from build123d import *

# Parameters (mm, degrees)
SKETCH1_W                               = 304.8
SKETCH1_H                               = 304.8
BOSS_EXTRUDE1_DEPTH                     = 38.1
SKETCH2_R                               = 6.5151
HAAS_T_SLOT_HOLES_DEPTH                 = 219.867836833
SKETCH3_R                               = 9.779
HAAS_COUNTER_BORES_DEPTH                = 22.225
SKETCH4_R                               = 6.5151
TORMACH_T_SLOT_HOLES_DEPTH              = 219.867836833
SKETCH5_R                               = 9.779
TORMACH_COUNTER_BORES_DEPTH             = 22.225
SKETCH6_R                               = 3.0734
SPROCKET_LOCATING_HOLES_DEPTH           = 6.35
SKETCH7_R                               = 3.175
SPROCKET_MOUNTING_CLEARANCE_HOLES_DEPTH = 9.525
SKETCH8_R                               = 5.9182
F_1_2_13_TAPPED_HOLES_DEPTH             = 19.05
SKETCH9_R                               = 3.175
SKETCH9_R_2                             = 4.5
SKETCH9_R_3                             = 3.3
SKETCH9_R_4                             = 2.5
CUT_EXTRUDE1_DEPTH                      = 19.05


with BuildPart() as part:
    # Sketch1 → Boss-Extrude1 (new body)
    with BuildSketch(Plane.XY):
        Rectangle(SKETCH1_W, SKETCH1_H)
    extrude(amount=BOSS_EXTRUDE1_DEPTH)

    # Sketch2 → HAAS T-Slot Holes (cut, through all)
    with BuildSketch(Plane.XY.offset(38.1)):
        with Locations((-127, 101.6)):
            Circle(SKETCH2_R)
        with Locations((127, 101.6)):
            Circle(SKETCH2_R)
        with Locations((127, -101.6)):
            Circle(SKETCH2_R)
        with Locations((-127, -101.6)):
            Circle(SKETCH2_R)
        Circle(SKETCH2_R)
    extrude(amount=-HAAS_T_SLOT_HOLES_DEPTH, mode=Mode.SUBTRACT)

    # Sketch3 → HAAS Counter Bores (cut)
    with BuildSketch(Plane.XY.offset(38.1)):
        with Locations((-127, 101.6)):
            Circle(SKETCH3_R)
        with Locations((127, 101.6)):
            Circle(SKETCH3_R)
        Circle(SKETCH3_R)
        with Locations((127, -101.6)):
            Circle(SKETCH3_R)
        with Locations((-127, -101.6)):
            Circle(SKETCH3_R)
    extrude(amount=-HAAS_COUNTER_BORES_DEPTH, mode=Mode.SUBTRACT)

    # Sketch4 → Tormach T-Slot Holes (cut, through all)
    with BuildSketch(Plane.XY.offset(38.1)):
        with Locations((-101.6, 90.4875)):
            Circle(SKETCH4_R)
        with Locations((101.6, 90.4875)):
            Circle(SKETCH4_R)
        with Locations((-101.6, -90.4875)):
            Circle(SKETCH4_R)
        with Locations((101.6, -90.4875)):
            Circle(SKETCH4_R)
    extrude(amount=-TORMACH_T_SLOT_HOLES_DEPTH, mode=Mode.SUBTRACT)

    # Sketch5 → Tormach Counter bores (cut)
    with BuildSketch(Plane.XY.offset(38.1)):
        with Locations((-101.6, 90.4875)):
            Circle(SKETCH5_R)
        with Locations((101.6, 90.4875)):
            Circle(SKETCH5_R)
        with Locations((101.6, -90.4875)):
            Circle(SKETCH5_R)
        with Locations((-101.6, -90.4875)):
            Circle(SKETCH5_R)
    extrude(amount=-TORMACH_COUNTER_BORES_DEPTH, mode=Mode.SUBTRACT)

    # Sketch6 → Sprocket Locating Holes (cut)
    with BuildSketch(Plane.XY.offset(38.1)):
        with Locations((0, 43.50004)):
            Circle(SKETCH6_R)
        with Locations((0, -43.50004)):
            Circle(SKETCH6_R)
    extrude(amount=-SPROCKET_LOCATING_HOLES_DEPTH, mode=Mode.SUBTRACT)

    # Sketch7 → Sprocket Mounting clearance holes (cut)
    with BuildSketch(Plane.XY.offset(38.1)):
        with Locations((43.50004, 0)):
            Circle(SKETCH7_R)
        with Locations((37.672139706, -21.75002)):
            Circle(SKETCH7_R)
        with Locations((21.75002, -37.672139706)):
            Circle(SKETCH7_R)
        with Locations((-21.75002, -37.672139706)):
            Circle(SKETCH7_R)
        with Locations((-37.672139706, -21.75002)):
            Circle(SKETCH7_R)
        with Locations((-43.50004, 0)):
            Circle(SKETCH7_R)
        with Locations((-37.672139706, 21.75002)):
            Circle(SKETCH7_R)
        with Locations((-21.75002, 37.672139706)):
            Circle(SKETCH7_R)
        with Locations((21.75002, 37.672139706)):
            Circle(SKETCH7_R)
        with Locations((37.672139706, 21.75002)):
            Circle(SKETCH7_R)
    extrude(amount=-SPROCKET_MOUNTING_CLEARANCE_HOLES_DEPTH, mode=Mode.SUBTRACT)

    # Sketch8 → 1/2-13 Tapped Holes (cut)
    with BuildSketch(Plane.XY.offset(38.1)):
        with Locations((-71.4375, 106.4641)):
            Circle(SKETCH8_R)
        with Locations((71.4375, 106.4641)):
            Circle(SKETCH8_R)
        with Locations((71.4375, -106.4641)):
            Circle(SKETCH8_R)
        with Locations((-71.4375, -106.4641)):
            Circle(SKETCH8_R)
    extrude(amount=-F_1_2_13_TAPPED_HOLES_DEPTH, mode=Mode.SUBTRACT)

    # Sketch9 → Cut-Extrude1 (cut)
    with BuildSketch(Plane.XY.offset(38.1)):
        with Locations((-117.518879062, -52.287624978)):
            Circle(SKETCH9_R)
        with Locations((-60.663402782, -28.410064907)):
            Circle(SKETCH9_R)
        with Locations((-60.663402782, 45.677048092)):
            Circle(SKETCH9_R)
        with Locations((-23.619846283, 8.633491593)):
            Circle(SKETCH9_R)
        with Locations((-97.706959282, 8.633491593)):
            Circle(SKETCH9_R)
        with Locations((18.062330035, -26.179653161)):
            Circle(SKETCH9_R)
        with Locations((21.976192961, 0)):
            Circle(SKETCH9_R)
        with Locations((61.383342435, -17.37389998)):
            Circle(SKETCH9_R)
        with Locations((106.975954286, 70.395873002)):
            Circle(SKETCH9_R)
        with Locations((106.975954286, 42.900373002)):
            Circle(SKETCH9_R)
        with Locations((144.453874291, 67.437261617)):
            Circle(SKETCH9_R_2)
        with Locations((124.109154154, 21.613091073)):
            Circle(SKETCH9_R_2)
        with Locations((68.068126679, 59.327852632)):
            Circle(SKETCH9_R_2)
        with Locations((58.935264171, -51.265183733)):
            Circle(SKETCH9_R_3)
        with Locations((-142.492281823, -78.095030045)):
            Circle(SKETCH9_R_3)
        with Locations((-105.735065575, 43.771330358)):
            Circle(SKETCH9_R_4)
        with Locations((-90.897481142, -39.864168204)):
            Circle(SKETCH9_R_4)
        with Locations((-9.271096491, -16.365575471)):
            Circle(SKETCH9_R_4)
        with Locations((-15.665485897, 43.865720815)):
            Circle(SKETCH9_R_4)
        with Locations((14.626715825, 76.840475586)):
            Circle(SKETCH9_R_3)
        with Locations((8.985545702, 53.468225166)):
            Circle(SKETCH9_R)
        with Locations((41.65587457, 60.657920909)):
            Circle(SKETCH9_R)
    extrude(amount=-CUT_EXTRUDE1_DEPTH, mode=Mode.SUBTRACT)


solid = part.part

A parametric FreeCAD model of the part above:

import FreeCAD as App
import Part
import Sketcher
from FreeCAD import Vector
Q = App.Units.Quantity


def add_polygon(sketch, points):
    """Adds a closed chain of lines whose ends are joined by coincident constraints."""
    first, n = sketch.GeometryCount, len(points)
    for a, b in zip(points, points[1:] + points[:1]):
        sketch.addGeometry(Part.LineSegment(App.Vector(*a, 0), App.Vector(*b, 0)), False)
    for i in range(n):
        sketch.addConstraint(Sketcher.Constraint("Coincident", first + i, 2, first + (i + 1) % n, 1))

doc = App.newDocument("Part")
body = doc.addObject("PartDesign::Body", "Body")

sketch1 = body.newObject("Sketcher::SketchObject", "Sketch")
sketch1.AttachmentSupport = (doc.getObject("XY_Plane"), [""])
sketch1.MapMode = "FlatFace"
add_polygon(sketch1, [(-152.4, 152.4), (-152.4, -152.4), (152.4, -152.4), (152.4, 152.4)])
sketch1.addConstraint([
    Sketcher.Constraint("Vertical", 0),
    Sketcher.Constraint("Horizontal", 1),
    Sketcher.Constraint("Vertical", 2),
    Sketcher.Constraint("Horizontal", 3),
    Sketcher.Constraint("Symmetric", 0, 2, 2, 2, -1, 1),
    Sketcher.Constraint("Equal", 3, 0),
    Sketcher.Constraint("DistanceX", 1, 1, 1, 2, Q("12 in")),
])
pad1 = body.newObject("PartDesign::Pad", "Pad")
pad1.Profile = sketch1
pad1.Length = Q("1.5 in")

sketch2 = body.newObject("Sketcher::SketchObject", "Sketch001")
sketch2.AttachmentSupport = (doc.getObject("XY_Plane"), [""])
sketch2.MapMode = "FlatFace"
sketch2.AttachmentOffset = App.Placement(Vector(0, 0, 1.5 * 25.4), App.Rotation())
sketch2.addGeometry([
    Part.Circle(Vector(-127, 101.6, 0), Vector(0, 0, 1), 6.5151),
    Part.Circle(Vector(127, 101.6, 0), Vector(0, 0, 1), 6.5151),
    Part.Circle(Vector(127, -101.6, 0), Vector(0, 0, 1), 6.5151),
    Part.Circle(Vector(-127, -101.6, 0), Vector(0, 0, 1), 6.5151),
    Part.Circle(Vector(0, 0, 0), Vector(0, 0, 1), 6.5151),
], False)
sketch2.addConstraint([
    Sketcher.Constraint("Coincident", 4, 3, -1, 1),
    Sketcher.Constraint("Equal", 0, 1),
    Sketcher.Constraint("Equal", 1, 2),
    Sketcher.Constraint("Equal", 2, 3),
    Sketcher.Constraint("Equal", 3, 4),
    Sketcher.Constraint("Symmetric", 0, 3, 2, 3, -1, 1),
    Sketcher.Constraint("Symmetric", 1, 3, 3, 3, -1, 1),
    Sketcher.Constraint("Symmetric", 0, 3, 1, 3, -2),
    Sketcher.Constraint("Diameter", 0, Q("0.513 in")),
    Sketcher.Constraint("DistanceX", 0, 3, -1, 1, Q("5 in")),
    Sketcher.Constraint("DistanceY", -1, 1, 0, 3, Q("4 in")),
])
pocket1 = body.newObject("PartDesign::Pocket", "Pocket")
pocket1.Profile = sketch2
pocket1.Type = "ThroughAll"

sketch3 = body.newObject("Sketcher::SketchObject", "Sketch002")
sketch3.AttachmentSupport = (doc.getObject("XY_Plane"), [""])
sketch3.MapMode = "FlatFace"
sketch3.AttachmentOffset = App.Placement(Vector(0, 0, 1.5 * 25.4), App.Rotation())
sketch3.addGeometry([
    Part.Circle(Vector(-127, 101.6, 0), Vector(0, 0, 1), 9.779),
    Part.Circle(Vector(127, 101.6, 0), Vector(0, 0, 1), 9.779),
    Part.Circle(Vector(0, 0, 0), Vector(0, 0, 1), 9.779),
    Part.Circle(Vector(127, -101.6, 0), Vector(0, 0, 1), 9.779),
    Part.Circle(Vector(-127, -101.6, 0), Vector(0, 0, 1), 9.779),
], False)
sketch3.addConstraint([
    Sketcher.Constraint("Coincident", 2, 3, -1, 1),
    Sketcher.Constraint("Equal", 0, 1),
    Sketcher.Constraint("Equal", 1, 2),
    Sketcher.Constraint("Equal", 2, 3),
    Sketcher.Constraint("Equal", 3, 4),
    Sketcher.Constraint("Symmetric", 0, 3, 3, 3, -1, 1),
    Sketcher.Constraint("Symmetric", 1, 3, 4, 3, -1, 1),
    Sketcher.Constraint("Symmetric", 0, 3, 1, 3, -2),
    Sketcher.Constraint("Diameter", 0, Q("0.77 in")),
    Sketcher.Constraint("DistanceX", 0, 3, -1, 1, Q("5 in")),
    Sketcher.Constraint("DistanceY", -1, 1, 0, 3, Q("4 in")),
])
pocket2 = body.newObject("PartDesign::Pocket", "Pocket001")
pocket2.Profile = sketch3
pocket2.Length = Q("0.875 in")

sketch4 = body.newObject("Sketcher::SketchObject", "Sketch003")
sketch4.AttachmentSupport = (doc.getObject("XY_Plane"), [""])
sketch4.MapMode = "FlatFace"
sketch4.AttachmentOffset = App.Placement(Vector(0, 0, 1.5 * 25.4), App.Rotation())
sketch4.addGeometry([
    Part.Circle(Vector(-101.6, 90.4875, 0), Vector(0, 0, 1), 6.5151),
    Part.Circle(Vector(101.6, 90.4875, 0), Vector(0, 0, 1), 6.5151),
    Part.Circle(Vector(-101.6, -90.4875, 0), Vector(0, 0, 1), 6.5151),
    Part.Circle(Vector(101.6, -90.4875, 0), Vector(0, 0, 1), 6.5151),
], False)
sketch4.addConstraint([
    Sketcher.Constraint("Equal", 0, 1),
    Sketcher.Constraint("Equal", 1, 2),
    Sketcher.Constraint("Equal", 2, 3),
    Sketcher.Constraint("Symmetric", 1, 3, 2, 3, -1, 1),
    Sketcher.Constraint("Symmetric", 0, 3, 3, 3, -1, 1),
    Sketcher.Constraint("Symmetric", 0, 3, 1, 3, -2),
    Sketcher.Constraint("Diameter", 0, Q("0.513 in")),
    Sketcher.Constraint("DistanceX", 0, 3, -1, 1, Q("4 in")),
    Sketcher.Constraint("DistanceY", -1, 1, 0, 3, Q("3.5625 in")),
])
pocket3 = body.newObject("PartDesign::Pocket", "Pocket002")
pocket3.Profile = sketch4
pocket3.Type = "ThroughAll"

sketch5 = body.newObject("Sketcher::SketchObject", "Sketch004")
sketch5.AttachmentSupport = (doc.getObject("XY_Plane"), [""])
sketch5.MapMode = "FlatFace"
sketch5.AttachmentOffset = App.Placement(Vector(0, 0, 1.5 * 25.4), App.Rotation())
sketch5.addGeometry([
    Part.Circle(Vector(-101.6, 90.4875, 0), Vector(0, 0, 1), 9.779),
    Part.Circle(Vector(101.6, 90.4875, 0), Vector(0, 0, 1), 9.779),
    Part.Circle(Vector(101.6, -90.4875, 0), Vector(0, 0, 1), 9.779),
    Part.Circle(Vector(-101.6, -90.4875, 0), Vector(0, 0, 1), 9.779),
], False)
sketch5.addConstraint([
    Sketcher.Constraint("Equal", 0, 1),
    Sketcher.Constraint("Equal", 1, 2),
    Sketcher.Constraint("Equal", 2, 3),
    Sketcher.Constraint("Symmetric", 0, 3, 2, 3, -1, 1),
    Sketcher.Constraint("Symmetric", 1, 3, 3, 3, -1, 1),
    Sketcher.Constraint("Symmetric", 0, 3, 1, 3, -2),
    Sketcher.Constraint("Diameter", 0, Q("0.77 in")),
    Sketcher.Constraint("DistanceX", 0, 3, -1, 1, Q("4 in")),
    Sketcher.Constraint("DistanceY", -1, 1, 0, 3, Q("3.5625 in")),
])
pocket4 = body.newObject("PartDesign::Pocket", "Pocket003")
pocket4.Profile = sketch5
pocket4.Length = Q("0.875 in")

sketch6 = body.newObject("Sketcher::SketchObject", "Sketch005")
sketch6.AttachmentSupport = (doc.getObject("XY_Plane"), [""])
sketch6.MapMode = "FlatFace"
sketch6.AttachmentOffset = App.Placement(Vector(0, 0, 1.5 * 25.4), App.Rotation())
sketch6.addGeometry([
    Part.Circle(Vector(0, 43.50004, 0), Vector(0, 0, 1), 3.0734),
    Part.Circle(Vector(0, -43.50004, 0), Vector(0, 0, 1), 3.0734),
], False)
sketch6.addConstraint([
    Sketcher.Constraint("Equal", 0, 1),
    Sketcher.Constraint("Symmetric", 0, 3, 1, 3, -1, 1),
    Sketcher.Constraint("PointOnObject", 0, 3, -2),
    Sketcher.Constraint("Diameter", 0, Q("0.242 in")),
    Sketcher.Constraint("DistanceY", -1, 1, 0, 3, Q("1.7126 in")),
])
pocket5 = body.newObject("PartDesign::Pocket", "Pocket004")
pocket5.Profile = sketch6
pocket5.Length = Q("0.25 in")

sketch7 = body.newObject("Sketcher::SketchObject", "Sketch006")
sketch7.AttachmentSupport = (doc.getObject("XY_Plane"), [""])
sketch7.MapMode = "FlatFace"
sketch7.AttachmentOffset = App.Placement(Vector(0, 0, 1.5 * 25.4), App.Rotation())
sketch7.addGeometry([
    Part.Circle(Vector(43.50004, 0, 0), Vector(0, 0, 1), 3.175),
    Part.Circle(Vector(37.67214, -21.75002, 0), Vector(0, 0, 1), 3.175),
    Part.Circle(Vector(21.75002, -37.67214, 0), Vector(0, 0, 1), 3.175),
    Part.Circle(Vector(-21.75002, -37.67214, 0), Vector(0, 0, 1), 3.175),
    Part.Circle(Vector(-37.67214, -21.75002, 0), Vector(0, 0, 1), 3.175),
    Part.Circle(Vector(-43.50004, 0, 0), Vector(0, 0, 1), 3.175),
    Part.Circle(Vector(-37.67214, 21.75002, 0), Vector(0, 0, 1), 3.175),
    Part.Circle(Vector(-21.75002, 37.67214, 0), Vector(0, 0, 1), 3.175),
    Part.Circle(Vector(21.75002, 37.67214, 0), Vector(0, 0, 1), 3.175),
    Part.Circle(Vector(37.67214, 21.75002, 0), Vector(0, 0, 1), 3.175),
], False)
sketch7.addConstraint([
    Sketcher.Constraint("Equal", 0, 1),
    Sketcher.Constraint("Equal", 1, 2),
    Sketcher.Constraint("Equal", 2, 3),
    Sketcher.Constraint("Equal", 3, 4),
    Sketcher.Constraint("Equal", 4, 5),
    Sketcher.Constraint("Equal", 5, 6),
    Sketcher.Constraint("Equal", 6, 7),
    Sketcher.Constraint("Equal", 7, 8),
    Sketcher.Constraint("Equal", 8, 9),
    Sketcher.Constraint("Symmetric", 0, 3, 5, 3, -1, 1),
    Sketcher.Constraint("Symmetric", 1, 3, 6, 3, -1, 1),
    Sketcher.Constraint("Symmetric", 2, 3, 7, 3, -1, 1),
    Sketcher.Constraint("Symmetric", 3, 3, 8, 3, -1, 1),
    Sketcher.Constraint("Symmetric", 4, 3, 9, 3, -1, 1),
    Sketcher.Constraint("Symmetric", 2, 3, 3, 3, -2),
    Sketcher.Constraint("Symmetric", 1, 3, 4, 3, -2),
    Sketcher.Constraint("PointOnObject", 0, 3, -1),
    Sketcher.Constraint("Diameter", 0, Q("0.25 in")),
    Sketcher.Constraint("DistanceX", -1, 1, 0, 3, Q("1.7126 in")),
    Sketcher.Constraint("DistanceY", 1, 3, -1, 1, Q("0.8563 in")),
    Sketcher.Constraint("DistanceX", -1, 1, 2, 3, Q("0.8563 in")),
    Sketcher.Constraint("DistanceX", 1, 3, 0, 3, 5.8279),
    Sketcher.Constraint("DistanceY", 2, 3, -1, 1, 37.67214),
])
pocket6 = body.newObject("PartDesign::Pocket", "Pocket005")
pocket6.Profile = sketch7
pocket6.Length = Q("0.375 in")

sketch8 = body.newObject("Sketcher::SketchObject", "Sketch007")
sketch8.AttachmentSupport = (doc.getObject("XY_Plane"), [""])
sketch8.MapMode = "FlatFace"
sketch8.AttachmentOffset = App.Placement(Vector(0, 0, 1.5 * 25.4), App.Rotation())
sketch8.addGeometry([
    Part.Circle(Vector(-71.4375, 106.4641, 0), Vector(0, 0, 1), 5.9182),
    Part.Circle(Vector(71.4375, 106.4641, 0), Vector(0, 0, 1), 5.9182),
    Part.Circle(Vector(71.4375, -106.4641, 0), Vector(0, 0, 1), 5.9182),
    Part.Circle(Vector(-71.4375, -106.4641, 0), Vector(0, 0, 1), 5.9182),
], False)
sketch8.addConstraint([
    Sketcher.Constraint("Equal", 0, 1),
    Sketcher.Constraint("Equal", 1, 2),
    Sketcher.Constraint("Equal", 2, 3),
    Sketcher.Constraint("Symmetric", 0, 3, 2, 3, -1, 1),
    Sketcher.Constraint("Symmetric", 1, 3, 3, 3, -1, 1),
    Sketcher.Constraint("Symmetric", 0, 3, 1, 3, -2),
    Sketcher.Constraint("Diameter", 0, Q("0.466 in")),
    Sketcher.Constraint("DistanceX", 0, 3, -1, 1, Q("2.8125 in")),
    Sketcher.Constraint("DistanceY", 2, 3, 1, 3, Q("8.383 in")),
])
pocket7 = body.newObject("PartDesign::Pocket", "Pocket006")
pocket7.Profile = sketch8
pocket7.Length = Q("0.75 in")

sketch9 = body.newObject("Sketcher::SketchObject", "Sketch008")
sketch9.AttachmentSupport = (doc.getObject("XY_Plane"), [""])
sketch9.MapMode = "FlatFace"
sketch9.AttachmentOffset = App.Placement(Vector(0, 0, 1.5 * 25.4), App.Rotation())
sketch9.addGeometry([
    Part.Circle(Vector(-117.518879, -52.287625, 0), Vector(0, 0, 1), 3.175),
    Part.Circle(Vector(-60.663403, -28.410065, 0), Vector(0, 0, 1), 3.175),
    Part.Circle(Vector(-60.663403, 45.677048, 0), Vector(0, 0, 1), 3.175),
    Part.Circle(Vector(-23.619846, 8.633492, 0), Vector(0, 0, 1), 3.175),
    Part.Circle(Vector(-97.706959, 8.633492, 0), Vector(0, 0, 1), 3.175),
    Part.Circle(Vector(18.06233, -26.179653, 0), Vector(0, 0, 1), 3.175),
    Part.Circle(Vector(21.976193, 0, 0), Vector(0, 0, 1), 3.175),
    Part.Circle(Vector(61.383342, -17.3739, 0), Vector(0, 0, 1), 3.175),
    Part.Circle(Vector(106.975954, 70.395873, 0), Vector(0, 0, 1), 3.175),
    Part.Circle(Vector(106.975954, 42.900373, 0), Vector(0, 0, 1), 3.175),
    Part.Circle(Vector(144.453874, 67.437262, 0), Vector(0, 0, 1), 4.5),
    Part.Circle(Vector(124.109154, 21.613091, 0), Vector(0, 0, 1), 4.5),
    Part.Circle(Vector(68.068127, 59.327853, 0), Vector(0, 0, 1), 4.5),
    Part.Circle(Vector(58.935264, -51.265184, 0), Vector(0, 0, 1), 3.3),
    Part.Circle(Vector(-142.492282, -78.09503, 0), Vector(0, 0, 1), 3.3),
    Part.Circle(Vector(-105.735066, 43.77133, 0), Vector(0, 0, 1), 2.5),
    Part.Circle(Vector(-90.897481, -39.864168, 0), Vector(0, 0, 1), 2.5),
    Part.Circle(Vector(-9.271096, -16.365575, 0), Vector(0, 0, 1), 2.5),
    Part.Circle(Vector(-15.665486, 43.865721, 0), Vector(0, 0, 1), 2.5),
    Part.Circle(Vector(14.626716, 76.840476, 0), Vector(0, 0, 1), 3.3),
    Part.Circle(Vector(8.985546, 53.468225, 0), Vector(0, 0, 1), 3.175),
    Part.Circle(Vector(41.655875, 60.657921, 0), Vector(0, 0, 1), 3.175),
], False)
sketch9.addConstraint([
    Sketcher.Constraint("Equal", 0, 1),
    Sketcher.Constraint("Equal", 1, 2),
    Sketcher.Constraint("Equal", 2, 3),
    Sketcher.Constraint("Equal", 3, 4),
    Sketcher.Constraint("Equal", 4, 5),
    Sketcher.Constraint("Equal", 5, 6),
    Sketcher.Constraint("Equal", 6, 7),
    Sketcher.Constraint("Equal", 7, 8),
    Sketcher.Constraint("Equal", 8, 9),
    Sketcher.Constraint("Equal", 10, 11),
    Sketcher.Constraint("Equal", 11, 12),
    Sketcher.Constraint("Equal", 13, 14),
    Sketcher.Constraint("Equal", 15, 16),
    Sketcher.Constraint("Equal", 16, 17),
    Sketcher.Constraint("Equal", 17, 18),
    Sketcher.Constraint("Equal", 14, 19),
    Sketcher.Constraint("Equal", 9, 20),
    Sketcher.Constraint("Equal", 20, 21),
    Sketcher.Constraint("PointOnObject", 6, 3, -1),
    Sketcher.Constraint("Horizontal", 3, 3, 4, 3),
    Sketcher.Constraint("Vertical", 1, 3, 2, 3),
    Sketcher.Constraint("Vertical", 8, 3, 9, 3),
    Sketcher.Constraint("Diameter", 0, Q("0.25 in")),
    Sketcher.Constraint("Diameter", 10, 9.0),
    Sketcher.Constraint("Diameter", 13, 6.6),
    Sketcher.Constraint("Diameter", 15, 5.0),
    Sketcher.Constraint("DistanceY", 9, 3, 8, 3, Q("1.0825 in")),
    Sketcher.Constraint("DistanceY", 7, 3, -1, 1, 17.3739),
    Sketcher.Constraint("DistanceY", 5, 3, 2, 3, 71.856701),
    Sketcher.Constraint("DistanceX", 3, 3, 8, 3, 130.595801),
    Sketcher.Constraint("DistanceX", 9, 3, 11, 3, 17.1332),
    Sketcher.Constraint("DistanceX", 14, 3, 16, 3, 51.594801),
    Sketcher.Constraint("DistanceX", 18, 3, 19, 3, 30.292202),
    Sketcher.Constraint("DistanceY", 18, 3, 21, 3, 16.7922),
    Sketcher.Constraint("DistanceX", 0, 3, -1, 1, 117.518879),
    Sketcher.Constraint("DistanceY", -1, 1, 2, 3, 45.677048),
    Sketcher.Constraint("DistanceY", -1, 1, 3, 3, 8.633492),
    Sketcher.Constraint("DistanceX", 4, 3, -1, 1, 97.706959),
    Sketcher.Constraint("DistanceX", -1, 1, 5, 3, 18.06233),
    Sketcher.Constraint("DistanceY", -1, 1, 10, 3, 67.437262),
    Sketcher.Constraint("DistanceY", -1, 1, 11, 3, 21.613091),
    Sketcher.Constraint("DistanceX", 14, 3, -1, 1, 142.492282),
    Sketcher.Constraint("DistanceY", 14, 3, -1, 1, 78.09503),
    Sketcher.Constraint("DistanceY", -1, 1, 15, 3, 43.77133),
    Sketcher.Constraint("DistanceY", 16, 3, -1, 1, 39.864168),
    Sketcher.Constraint("DistanceY", -1, 1, 18, 3, 43.865721),
    Sketcher.Constraint("DistanceY", 0, 3, 1, 3, 23.87756),
    Sketcher.Constraint("DistanceY", 1, 3, 5, 3, 2.230412),
    Sketcher.Constraint("DistanceX", 3, 3, 6, 3, 45.596039),
    Sketcher.Constraint("DistanceX", 6, 3, 7, 3, 39.407149),
    Sketcher.Constraint("DistanceY", 3, 3, 8, 3, 61.762381),
    Sketcher.Constraint("DistanceX", 8, 3, 10, 3, 37.47792),
    Sketcher.Constraint("DistanceY", 12, 3, 8, 3, 11.06802),
    Sketcher.Constraint("DistanceX", 13, 3, 7, 3, 2.448078),
    Sketcher.Constraint("DistanceY", 13, 3, 5, 3, 25.085531),
    Sketcher.Constraint("DistanceX", 14, 3, 1, 3, 81.828879),
    Sketcher.Constraint("DistanceX", 15, 3, 3, 3, 82.115219),
    Sketcher.Constraint("DistanceX", 3, 3, 17, 3, 14.34875),
    Sketcher.Constraint("DistanceY", 1, 3, 17, 3, 12.044489),
    Sketcher.Constraint("DistanceX", 3, 3, 18, 3, 7.95436),
    Sketcher.Constraint("DistanceX", 19, 3, 12, 3, 53.441411),
    Sketcher.Constraint("DistanceX", 2, 3, 19, 3, 75.290119),
    Sketcher.Constraint("DistanceX", 20, 3, 19, 3, 5.64117),
    Sketcher.Constraint("DistanceY", 20, 3, 19, 3, 23.37225),
    Sketcher.Constraint("DistanceX", 19, 3, 21, 3, 27.029159),
    Sketcher.Constraint("DistanceY", -1, 1, 19, 3, 76.840476),
])
pocket8 = body.newObject("PartDesign::Pocket", "Pocket007")
pocket8.Profile = sketch9
pocket8.Length = Q("0.75 in")

doc.recompute()
